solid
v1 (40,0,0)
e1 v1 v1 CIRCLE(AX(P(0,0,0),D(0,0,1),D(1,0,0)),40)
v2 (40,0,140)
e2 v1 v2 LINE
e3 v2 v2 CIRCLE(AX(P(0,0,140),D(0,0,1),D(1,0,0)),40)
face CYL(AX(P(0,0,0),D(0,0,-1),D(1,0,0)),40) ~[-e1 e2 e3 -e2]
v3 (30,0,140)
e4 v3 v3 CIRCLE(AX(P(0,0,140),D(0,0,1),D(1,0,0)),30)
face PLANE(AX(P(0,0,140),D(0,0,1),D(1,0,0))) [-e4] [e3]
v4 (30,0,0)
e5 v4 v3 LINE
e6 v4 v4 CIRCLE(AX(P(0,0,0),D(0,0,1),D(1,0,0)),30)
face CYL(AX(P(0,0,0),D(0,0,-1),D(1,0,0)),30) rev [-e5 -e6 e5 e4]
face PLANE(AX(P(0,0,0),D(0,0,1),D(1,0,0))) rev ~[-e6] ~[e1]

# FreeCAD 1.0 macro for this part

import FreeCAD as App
import Part
import Sketcher

V = App.Vector
Q = App.Units.Quantity

doc = App.newDocument("Part")
body = doc.addObject("PartDesign::Body", "Body")

sketch1 = body.newObject("Sketcher::SketchObject", "Sketch")
sketch1.AttachmentSupport = (doc.getObject("XY_Plane"), [""])
sketch1.MapMode = "FlatFace"
sketch1.addGeometry([
    Part.Circle(V(0, 0, 0), V(0, 0, 1), 40),
    Part.Circle(V(0, 0, 0), V(0, 0, 1), 30),
], False)
sketch1.addConstraint([
    Sketcher.Constraint("Coincident", 0, 3, -1, 1),
    Sketcher.Constraint("Coincident", 1, 3, -1, 1),
    Sketcher.Constraint("Diameter", 0, Q("80 mm")),
    Sketcher.Constraint("Diameter", 1, Q("60 mm")),
])
pad1 = body.newObject("PartDesign::Pad", "Pad")
pad1.Profile = sketch1
pad1.Length = 140

doc.recompute()
